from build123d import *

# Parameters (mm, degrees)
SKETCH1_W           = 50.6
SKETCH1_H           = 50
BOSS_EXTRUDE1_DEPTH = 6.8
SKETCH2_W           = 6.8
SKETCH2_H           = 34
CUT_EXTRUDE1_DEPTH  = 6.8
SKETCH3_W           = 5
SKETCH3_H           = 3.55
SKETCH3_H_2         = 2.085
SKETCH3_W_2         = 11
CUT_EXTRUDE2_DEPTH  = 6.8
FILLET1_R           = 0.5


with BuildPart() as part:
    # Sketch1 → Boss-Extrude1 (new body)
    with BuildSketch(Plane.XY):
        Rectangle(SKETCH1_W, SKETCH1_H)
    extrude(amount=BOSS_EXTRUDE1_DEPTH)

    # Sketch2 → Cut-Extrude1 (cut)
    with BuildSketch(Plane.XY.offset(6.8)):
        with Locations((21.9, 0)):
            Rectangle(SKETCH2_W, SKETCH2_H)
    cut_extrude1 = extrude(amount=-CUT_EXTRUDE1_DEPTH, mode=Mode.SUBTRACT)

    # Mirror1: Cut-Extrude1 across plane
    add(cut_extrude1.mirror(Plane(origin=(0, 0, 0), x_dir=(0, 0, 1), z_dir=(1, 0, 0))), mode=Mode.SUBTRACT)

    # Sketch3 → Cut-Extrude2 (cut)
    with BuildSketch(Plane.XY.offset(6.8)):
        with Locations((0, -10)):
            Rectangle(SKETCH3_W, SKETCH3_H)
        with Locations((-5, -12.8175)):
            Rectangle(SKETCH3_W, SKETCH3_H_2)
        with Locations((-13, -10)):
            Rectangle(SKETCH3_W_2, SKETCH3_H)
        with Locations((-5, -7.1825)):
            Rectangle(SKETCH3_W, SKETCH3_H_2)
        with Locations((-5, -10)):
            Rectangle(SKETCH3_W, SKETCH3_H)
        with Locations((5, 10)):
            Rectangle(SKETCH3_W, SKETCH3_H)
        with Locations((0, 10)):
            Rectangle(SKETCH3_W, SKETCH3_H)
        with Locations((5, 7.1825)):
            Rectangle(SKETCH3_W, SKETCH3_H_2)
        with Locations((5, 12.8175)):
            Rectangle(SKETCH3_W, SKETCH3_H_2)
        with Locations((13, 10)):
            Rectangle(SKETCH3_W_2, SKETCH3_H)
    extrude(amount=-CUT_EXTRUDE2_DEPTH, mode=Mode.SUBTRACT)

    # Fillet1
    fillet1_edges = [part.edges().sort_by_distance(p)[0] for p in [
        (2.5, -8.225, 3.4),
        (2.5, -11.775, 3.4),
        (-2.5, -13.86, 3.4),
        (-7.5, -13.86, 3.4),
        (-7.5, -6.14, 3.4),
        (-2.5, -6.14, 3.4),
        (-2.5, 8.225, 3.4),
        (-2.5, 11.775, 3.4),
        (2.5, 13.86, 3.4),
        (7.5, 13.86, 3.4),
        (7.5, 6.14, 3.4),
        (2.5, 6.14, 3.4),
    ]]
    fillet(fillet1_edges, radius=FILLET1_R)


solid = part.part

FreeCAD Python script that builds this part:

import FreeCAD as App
import Part
import Sketcher


def edges_at(feature, points):
    """Names of the edges that pass closest to the given points."""
    edges = feature.Shape.Edges
    near = lambda p: min(range(len(edges)), key=lambda i: edges[i].distToShape(Part.Vertex(*p))[0])
    return sorted({f"Edge{near(p) + 1}" for p in points})


def add_polygon(sketch, points):
    """Adds a closed chain of lines whose ends are joined by coincident constraints."""
    first, n = sketch.GeometryCount, len(points)
    for a, b in zip(points, points[1:] + points[:1]):
        sketch.addGeometry(Part.LineSegment(App.Vector(*a, 0), App.Vector(*b, 0)), False)
    for i in range(n):
        sketch.addConstraint(Sketcher.Constraint("Coincident", first + i, 2, first + (i + 1) % n, 1))

doc = App.newDocument("Part")
body = doc.addObject("PartDesign::Body", "Body")

# Sketch on XY plane
sketch1 = doc.addObject("Sketcher::SketchObject", "Sketch")
body.addObject(sketch1)
sketch1.AttachmentSupport = (doc.XY_Plane, [""])
sketch1.MapMode = "FlatFace"
add_polygon(sketch1, [(-25.3, 25), (-25.3, -25), (25.3, -25), (25.3, 25)])  # lines 0-3
sketch1.addConstraint(Sketcher.Constraint("Vertical", 0))
sketch1.addConstraint(Sketcher.Constraint("Horizontal", 1))
sketch1.addConstraint(Sketcher.Constraint("Vertical", 2))
sketch1.addConstraint(Sketcher.Constraint("Horizontal", 3))
sketch1.addConstraint(Sketcher.Constraint("Symmetric", 0, 2, 2, 2, -1, 1))
sketch1.addConstraint(Sketcher.Constraint("DistanceY", 0, 2, 0, 1, 50.0))
sketch1.addConstraint(Sketcher.Constraint("DistanceX", 1, 1, 1, 2, 50.6))
pad1 = doc.addObject("PartDesign::Pad", "Pad")
body.addObject(pad1)
pad1.Profile = sketch1
pad1.Length = 6.8

# Sketch on XY plane
sketch2 = doc.addObject("Sketcher::SketchObject", "Sketch001")
body.addObject(sketch2)
sketch2.AttachmentSupport = (doc.XY_Plane, [""])
sketch2.MapMode = "FlatFace"
sketch2.AttachmentOffset = App.Placement(App.Vector(0, 0, 6.8), App.Rotation())
add_polygon(sketch2, [(18.5, 17), (18.5, -17), (25.3, -17), (25.3, 17)])  # lines 0-3
sketch2.addConstraint(Sketcher.Constraint("Vertical", 0))
sketch2.addConstraint(Sketcher.Constraint("Horizontal", 1))
sketch2.addConstraint(Sketcher.Constraint("Vertical", 2))
sketch2.addConstraint(Sketcher.Constraint("Horizontal", 3))
sketch2.addConstraint(Sketcher.Constraint("DistanceY", 0, 2, 0, 1, 34.0))
sketch2.addConstraint(Sketcher.Constraint("DistanceX", 1, 1, 1, 2, 6.8))
sketch2.addConstraint(Sketcher.Constraint("DistanceY", 0, 2, -1, 1, 17.0))
sketch2.addConstraint(Sketcher.Constraint("DistanceX", -1, 1, 0, 2, 18.5))
pocket1 = doc.addObject("PartDesign::Pocket", "Pocket")
body.addObject(pocket1)
pocket1.Profile = sketch2
pocket1.Length = 6.8
doc.recompute()

mirrored = doc.addObject("PartDesign::Mirrored", "Mirrored")
body.addObject(mirrored)
mirrored.Originals = [pocket1]
mirrored.MirrorPlane = (doc.YZ_Plane, [""])
body.Tip = mirrored

# Sketch on XY plane
sketch3 = doc.addObject("Sketcher::SketchObject", "Sketch002")
body.addObject(sketch3)
sketch3.AttachmentSupport = (doc.XY_Plane, [""])
sketch3.MapMode = "FlatFace"
sketch3.AttachmentOffset = App.Placement(App.Vector(0, 0, 6.8), App.Rotation())
add_polygon(sketch3, [(-2.5, -11.775), (2.5, -11.775), (2.5, -8.225), (-2.5, -8.225), (-2.5, -6.14), (-7.5, -6.14), (-7.5, -8.225), (-18.5, -8.225), (-18.5, -11.775), (-7.5, -11.775), (-7.5, -13.86), (-2.5, -13.86)])  # lines 0-11
add_polygon(sketch3, [(2.5, 11.775), (-2.5, 11.775), (-2.5, 8.225), (2.5, 8.225), (2.5, 6.14), (7.5, 6.14), (7.5, 8.225), (18.5, 8.225), (18.5, 11.775), (7.5, 11.775), (7.5, 13.86), (2.5, 13.86)])  # lines 12-23
sketch3.addConstraint(Sketcher.Constraint("Horizontal", 0))
sketch3.addConstraint(Sketcher.Constraint("Vertical", 1))
sketch3.addConstraint(Sketcher.Constraint("Horizontal", 2))
sketch3.addConstraint(Sketcher.Constraint("Vertical", 3))
sketch3.addConstraint(Sketcher.Constraint("Horizontal", 4))
sketch3.addConstraint(Sketcher.Constraint("Vertical", 5))
sketch3.addConstraint(Sketcher.Constraint("Horizontal", 6))
sketch3.addConstraint(Sketcher.Constraint("Vertical", 7))
sketch3.addConstraint(Sketcher.Constraint("Horizontal", 8))
sketch3.addConstraint(Sketcher.Constraint("Vertical", 9))
sketch3.addConstraint(Sketcher.Constraint("Horizontal", 10))
sketch3.addConstraint(Sketcher.Constraint("Vertical", 11))
sketch3.addConstraint(Sketcher.Constraint("Horizontal", 12))
sketch3.addConstraint(Sketcher.Constraint("Vertical", 13))
sketch3.addConstraint(Sketcher.Constraint("Horizontal", 14))
sketch3.addConstraint(Sketcher.Constraint("Vertical", 15))
sketch3.addConstraint(Sketcher.Constraint("Horizontal", 16))
sketch3.addConstraint(Sketcher.Constraint("Vertical", 17))
sketch3.addConstraint(Sketcher.Constraint("Horizontal", 18))
sketch3.addConstraint(Sketcher.Constraint("Vertical", 19))
sketch3.addConstraint(Sketcher.Constraint("Horizontal", 20))
sketch3.addConstraint(Sketcher.Constraint("Vertical", 21))
sketch3.addConstraint(Sketcher.Constraint("Horizontal", 22))
sketch3.addConstraint(Sketcher.Constraint("Vertical", 23))
sketch3.addConstraint(Sketcher.Constraint("Symmetric", 0, 2, 12, 2, -1, 1))
sketch3.addConstraint(Sketcher.Constraint("Symmetric", 2, 2, 14, 2, -1, 1))
sketch3.addConstraint(Sketcher.Constraint("Symmetric", 4, 2, 16, 2, -1, 1))
sketch3.addConstraint(Sketcher.Constraint("Symmetric", 6, 2, 18, 2, -1, 1))
sketch3.addConstraint(Sketcher.Constraint("Symmetric", 8, 2, 20, 2, -1, 1))
sketch3.addConstraint(Sketcher.Constraint("Symmetric", 10, 2, 22, 2, -1, 1))
sketch3.addConstraint(Sketcher.Constraint("Horizontal", 2, 2, 5, 2))
sketch3.addConstraint(Sketcher.Constraint("Horizontal", 0, 2, 7, 2))
sketch3.addConstraint(Sketcher.Constraint("Vertical", 5, 2, 8, 2))
sketch3.addConstraint(Sketcher.Constraint("Vertical", 3, 2, 10, 2))
sketch3.addConstraint(Sketcher.Constraint("Vertical", 11, 2, 12, 2))
sketch3.addConstraint(Sketcher.Constraint("Equal", 2, 4))
sketch3.addConstraint(Sketcher.Constraint("Equal", 5, 9))
sketch3.addConstraint(Sketcher.Constraint("DistanceX", 0, 1, 0, 2, 5.0))
sketch3.addConstraint(Sketcher.Constraint("DistanceX", 6, 2, 6, 1, 11.0))
sketch3.addConstraint(Sketcher.Constraint("DistanceY", 2, 2, 12, 2, 20.0))
sketch3.addConstraint(Sketcher.Constraint("DistanceY", 1, 1, 1, 2, 3.55))
sketch3.addConstraint(Sketcher.Constraint("DistanceY", 3, 1, 3, 2, 2.085))
pocket2 = doc.addObject("PartDesign::Pocket", "Pocket001")
body.addObject(pocket2)
pocket2.Profile = sketch3
pocket2.Length = 6.8
doc.recompute()

fillet = doc.addObject("PartDesign::Fillet", "Fillet")
body.addObject(fillet)
fillet.Base = (pocket2, edges_at(pocket2, [
    (2.5, -8.225, 3.4),
    (2.5, -11.775, 3.4),
    (-2.5, -13.86, 3.4),
    (-7.5, -13.86, 3.4),
    (-7.5, -6.14, 3.4),
    (-2.5, -6.14, 3.4),
    (-2.5, 8.225, 3.4),
    (-2.5, 11.775, 3.4),
    (2.5, 13.86, 3.4),
    (7.5, 13.86, 3.4),
    (7.5, 6.14, 3.4),
    (2.5, 6.14, 3.4),
]))
fillet.Radius = 0.5

doc.recompute()
